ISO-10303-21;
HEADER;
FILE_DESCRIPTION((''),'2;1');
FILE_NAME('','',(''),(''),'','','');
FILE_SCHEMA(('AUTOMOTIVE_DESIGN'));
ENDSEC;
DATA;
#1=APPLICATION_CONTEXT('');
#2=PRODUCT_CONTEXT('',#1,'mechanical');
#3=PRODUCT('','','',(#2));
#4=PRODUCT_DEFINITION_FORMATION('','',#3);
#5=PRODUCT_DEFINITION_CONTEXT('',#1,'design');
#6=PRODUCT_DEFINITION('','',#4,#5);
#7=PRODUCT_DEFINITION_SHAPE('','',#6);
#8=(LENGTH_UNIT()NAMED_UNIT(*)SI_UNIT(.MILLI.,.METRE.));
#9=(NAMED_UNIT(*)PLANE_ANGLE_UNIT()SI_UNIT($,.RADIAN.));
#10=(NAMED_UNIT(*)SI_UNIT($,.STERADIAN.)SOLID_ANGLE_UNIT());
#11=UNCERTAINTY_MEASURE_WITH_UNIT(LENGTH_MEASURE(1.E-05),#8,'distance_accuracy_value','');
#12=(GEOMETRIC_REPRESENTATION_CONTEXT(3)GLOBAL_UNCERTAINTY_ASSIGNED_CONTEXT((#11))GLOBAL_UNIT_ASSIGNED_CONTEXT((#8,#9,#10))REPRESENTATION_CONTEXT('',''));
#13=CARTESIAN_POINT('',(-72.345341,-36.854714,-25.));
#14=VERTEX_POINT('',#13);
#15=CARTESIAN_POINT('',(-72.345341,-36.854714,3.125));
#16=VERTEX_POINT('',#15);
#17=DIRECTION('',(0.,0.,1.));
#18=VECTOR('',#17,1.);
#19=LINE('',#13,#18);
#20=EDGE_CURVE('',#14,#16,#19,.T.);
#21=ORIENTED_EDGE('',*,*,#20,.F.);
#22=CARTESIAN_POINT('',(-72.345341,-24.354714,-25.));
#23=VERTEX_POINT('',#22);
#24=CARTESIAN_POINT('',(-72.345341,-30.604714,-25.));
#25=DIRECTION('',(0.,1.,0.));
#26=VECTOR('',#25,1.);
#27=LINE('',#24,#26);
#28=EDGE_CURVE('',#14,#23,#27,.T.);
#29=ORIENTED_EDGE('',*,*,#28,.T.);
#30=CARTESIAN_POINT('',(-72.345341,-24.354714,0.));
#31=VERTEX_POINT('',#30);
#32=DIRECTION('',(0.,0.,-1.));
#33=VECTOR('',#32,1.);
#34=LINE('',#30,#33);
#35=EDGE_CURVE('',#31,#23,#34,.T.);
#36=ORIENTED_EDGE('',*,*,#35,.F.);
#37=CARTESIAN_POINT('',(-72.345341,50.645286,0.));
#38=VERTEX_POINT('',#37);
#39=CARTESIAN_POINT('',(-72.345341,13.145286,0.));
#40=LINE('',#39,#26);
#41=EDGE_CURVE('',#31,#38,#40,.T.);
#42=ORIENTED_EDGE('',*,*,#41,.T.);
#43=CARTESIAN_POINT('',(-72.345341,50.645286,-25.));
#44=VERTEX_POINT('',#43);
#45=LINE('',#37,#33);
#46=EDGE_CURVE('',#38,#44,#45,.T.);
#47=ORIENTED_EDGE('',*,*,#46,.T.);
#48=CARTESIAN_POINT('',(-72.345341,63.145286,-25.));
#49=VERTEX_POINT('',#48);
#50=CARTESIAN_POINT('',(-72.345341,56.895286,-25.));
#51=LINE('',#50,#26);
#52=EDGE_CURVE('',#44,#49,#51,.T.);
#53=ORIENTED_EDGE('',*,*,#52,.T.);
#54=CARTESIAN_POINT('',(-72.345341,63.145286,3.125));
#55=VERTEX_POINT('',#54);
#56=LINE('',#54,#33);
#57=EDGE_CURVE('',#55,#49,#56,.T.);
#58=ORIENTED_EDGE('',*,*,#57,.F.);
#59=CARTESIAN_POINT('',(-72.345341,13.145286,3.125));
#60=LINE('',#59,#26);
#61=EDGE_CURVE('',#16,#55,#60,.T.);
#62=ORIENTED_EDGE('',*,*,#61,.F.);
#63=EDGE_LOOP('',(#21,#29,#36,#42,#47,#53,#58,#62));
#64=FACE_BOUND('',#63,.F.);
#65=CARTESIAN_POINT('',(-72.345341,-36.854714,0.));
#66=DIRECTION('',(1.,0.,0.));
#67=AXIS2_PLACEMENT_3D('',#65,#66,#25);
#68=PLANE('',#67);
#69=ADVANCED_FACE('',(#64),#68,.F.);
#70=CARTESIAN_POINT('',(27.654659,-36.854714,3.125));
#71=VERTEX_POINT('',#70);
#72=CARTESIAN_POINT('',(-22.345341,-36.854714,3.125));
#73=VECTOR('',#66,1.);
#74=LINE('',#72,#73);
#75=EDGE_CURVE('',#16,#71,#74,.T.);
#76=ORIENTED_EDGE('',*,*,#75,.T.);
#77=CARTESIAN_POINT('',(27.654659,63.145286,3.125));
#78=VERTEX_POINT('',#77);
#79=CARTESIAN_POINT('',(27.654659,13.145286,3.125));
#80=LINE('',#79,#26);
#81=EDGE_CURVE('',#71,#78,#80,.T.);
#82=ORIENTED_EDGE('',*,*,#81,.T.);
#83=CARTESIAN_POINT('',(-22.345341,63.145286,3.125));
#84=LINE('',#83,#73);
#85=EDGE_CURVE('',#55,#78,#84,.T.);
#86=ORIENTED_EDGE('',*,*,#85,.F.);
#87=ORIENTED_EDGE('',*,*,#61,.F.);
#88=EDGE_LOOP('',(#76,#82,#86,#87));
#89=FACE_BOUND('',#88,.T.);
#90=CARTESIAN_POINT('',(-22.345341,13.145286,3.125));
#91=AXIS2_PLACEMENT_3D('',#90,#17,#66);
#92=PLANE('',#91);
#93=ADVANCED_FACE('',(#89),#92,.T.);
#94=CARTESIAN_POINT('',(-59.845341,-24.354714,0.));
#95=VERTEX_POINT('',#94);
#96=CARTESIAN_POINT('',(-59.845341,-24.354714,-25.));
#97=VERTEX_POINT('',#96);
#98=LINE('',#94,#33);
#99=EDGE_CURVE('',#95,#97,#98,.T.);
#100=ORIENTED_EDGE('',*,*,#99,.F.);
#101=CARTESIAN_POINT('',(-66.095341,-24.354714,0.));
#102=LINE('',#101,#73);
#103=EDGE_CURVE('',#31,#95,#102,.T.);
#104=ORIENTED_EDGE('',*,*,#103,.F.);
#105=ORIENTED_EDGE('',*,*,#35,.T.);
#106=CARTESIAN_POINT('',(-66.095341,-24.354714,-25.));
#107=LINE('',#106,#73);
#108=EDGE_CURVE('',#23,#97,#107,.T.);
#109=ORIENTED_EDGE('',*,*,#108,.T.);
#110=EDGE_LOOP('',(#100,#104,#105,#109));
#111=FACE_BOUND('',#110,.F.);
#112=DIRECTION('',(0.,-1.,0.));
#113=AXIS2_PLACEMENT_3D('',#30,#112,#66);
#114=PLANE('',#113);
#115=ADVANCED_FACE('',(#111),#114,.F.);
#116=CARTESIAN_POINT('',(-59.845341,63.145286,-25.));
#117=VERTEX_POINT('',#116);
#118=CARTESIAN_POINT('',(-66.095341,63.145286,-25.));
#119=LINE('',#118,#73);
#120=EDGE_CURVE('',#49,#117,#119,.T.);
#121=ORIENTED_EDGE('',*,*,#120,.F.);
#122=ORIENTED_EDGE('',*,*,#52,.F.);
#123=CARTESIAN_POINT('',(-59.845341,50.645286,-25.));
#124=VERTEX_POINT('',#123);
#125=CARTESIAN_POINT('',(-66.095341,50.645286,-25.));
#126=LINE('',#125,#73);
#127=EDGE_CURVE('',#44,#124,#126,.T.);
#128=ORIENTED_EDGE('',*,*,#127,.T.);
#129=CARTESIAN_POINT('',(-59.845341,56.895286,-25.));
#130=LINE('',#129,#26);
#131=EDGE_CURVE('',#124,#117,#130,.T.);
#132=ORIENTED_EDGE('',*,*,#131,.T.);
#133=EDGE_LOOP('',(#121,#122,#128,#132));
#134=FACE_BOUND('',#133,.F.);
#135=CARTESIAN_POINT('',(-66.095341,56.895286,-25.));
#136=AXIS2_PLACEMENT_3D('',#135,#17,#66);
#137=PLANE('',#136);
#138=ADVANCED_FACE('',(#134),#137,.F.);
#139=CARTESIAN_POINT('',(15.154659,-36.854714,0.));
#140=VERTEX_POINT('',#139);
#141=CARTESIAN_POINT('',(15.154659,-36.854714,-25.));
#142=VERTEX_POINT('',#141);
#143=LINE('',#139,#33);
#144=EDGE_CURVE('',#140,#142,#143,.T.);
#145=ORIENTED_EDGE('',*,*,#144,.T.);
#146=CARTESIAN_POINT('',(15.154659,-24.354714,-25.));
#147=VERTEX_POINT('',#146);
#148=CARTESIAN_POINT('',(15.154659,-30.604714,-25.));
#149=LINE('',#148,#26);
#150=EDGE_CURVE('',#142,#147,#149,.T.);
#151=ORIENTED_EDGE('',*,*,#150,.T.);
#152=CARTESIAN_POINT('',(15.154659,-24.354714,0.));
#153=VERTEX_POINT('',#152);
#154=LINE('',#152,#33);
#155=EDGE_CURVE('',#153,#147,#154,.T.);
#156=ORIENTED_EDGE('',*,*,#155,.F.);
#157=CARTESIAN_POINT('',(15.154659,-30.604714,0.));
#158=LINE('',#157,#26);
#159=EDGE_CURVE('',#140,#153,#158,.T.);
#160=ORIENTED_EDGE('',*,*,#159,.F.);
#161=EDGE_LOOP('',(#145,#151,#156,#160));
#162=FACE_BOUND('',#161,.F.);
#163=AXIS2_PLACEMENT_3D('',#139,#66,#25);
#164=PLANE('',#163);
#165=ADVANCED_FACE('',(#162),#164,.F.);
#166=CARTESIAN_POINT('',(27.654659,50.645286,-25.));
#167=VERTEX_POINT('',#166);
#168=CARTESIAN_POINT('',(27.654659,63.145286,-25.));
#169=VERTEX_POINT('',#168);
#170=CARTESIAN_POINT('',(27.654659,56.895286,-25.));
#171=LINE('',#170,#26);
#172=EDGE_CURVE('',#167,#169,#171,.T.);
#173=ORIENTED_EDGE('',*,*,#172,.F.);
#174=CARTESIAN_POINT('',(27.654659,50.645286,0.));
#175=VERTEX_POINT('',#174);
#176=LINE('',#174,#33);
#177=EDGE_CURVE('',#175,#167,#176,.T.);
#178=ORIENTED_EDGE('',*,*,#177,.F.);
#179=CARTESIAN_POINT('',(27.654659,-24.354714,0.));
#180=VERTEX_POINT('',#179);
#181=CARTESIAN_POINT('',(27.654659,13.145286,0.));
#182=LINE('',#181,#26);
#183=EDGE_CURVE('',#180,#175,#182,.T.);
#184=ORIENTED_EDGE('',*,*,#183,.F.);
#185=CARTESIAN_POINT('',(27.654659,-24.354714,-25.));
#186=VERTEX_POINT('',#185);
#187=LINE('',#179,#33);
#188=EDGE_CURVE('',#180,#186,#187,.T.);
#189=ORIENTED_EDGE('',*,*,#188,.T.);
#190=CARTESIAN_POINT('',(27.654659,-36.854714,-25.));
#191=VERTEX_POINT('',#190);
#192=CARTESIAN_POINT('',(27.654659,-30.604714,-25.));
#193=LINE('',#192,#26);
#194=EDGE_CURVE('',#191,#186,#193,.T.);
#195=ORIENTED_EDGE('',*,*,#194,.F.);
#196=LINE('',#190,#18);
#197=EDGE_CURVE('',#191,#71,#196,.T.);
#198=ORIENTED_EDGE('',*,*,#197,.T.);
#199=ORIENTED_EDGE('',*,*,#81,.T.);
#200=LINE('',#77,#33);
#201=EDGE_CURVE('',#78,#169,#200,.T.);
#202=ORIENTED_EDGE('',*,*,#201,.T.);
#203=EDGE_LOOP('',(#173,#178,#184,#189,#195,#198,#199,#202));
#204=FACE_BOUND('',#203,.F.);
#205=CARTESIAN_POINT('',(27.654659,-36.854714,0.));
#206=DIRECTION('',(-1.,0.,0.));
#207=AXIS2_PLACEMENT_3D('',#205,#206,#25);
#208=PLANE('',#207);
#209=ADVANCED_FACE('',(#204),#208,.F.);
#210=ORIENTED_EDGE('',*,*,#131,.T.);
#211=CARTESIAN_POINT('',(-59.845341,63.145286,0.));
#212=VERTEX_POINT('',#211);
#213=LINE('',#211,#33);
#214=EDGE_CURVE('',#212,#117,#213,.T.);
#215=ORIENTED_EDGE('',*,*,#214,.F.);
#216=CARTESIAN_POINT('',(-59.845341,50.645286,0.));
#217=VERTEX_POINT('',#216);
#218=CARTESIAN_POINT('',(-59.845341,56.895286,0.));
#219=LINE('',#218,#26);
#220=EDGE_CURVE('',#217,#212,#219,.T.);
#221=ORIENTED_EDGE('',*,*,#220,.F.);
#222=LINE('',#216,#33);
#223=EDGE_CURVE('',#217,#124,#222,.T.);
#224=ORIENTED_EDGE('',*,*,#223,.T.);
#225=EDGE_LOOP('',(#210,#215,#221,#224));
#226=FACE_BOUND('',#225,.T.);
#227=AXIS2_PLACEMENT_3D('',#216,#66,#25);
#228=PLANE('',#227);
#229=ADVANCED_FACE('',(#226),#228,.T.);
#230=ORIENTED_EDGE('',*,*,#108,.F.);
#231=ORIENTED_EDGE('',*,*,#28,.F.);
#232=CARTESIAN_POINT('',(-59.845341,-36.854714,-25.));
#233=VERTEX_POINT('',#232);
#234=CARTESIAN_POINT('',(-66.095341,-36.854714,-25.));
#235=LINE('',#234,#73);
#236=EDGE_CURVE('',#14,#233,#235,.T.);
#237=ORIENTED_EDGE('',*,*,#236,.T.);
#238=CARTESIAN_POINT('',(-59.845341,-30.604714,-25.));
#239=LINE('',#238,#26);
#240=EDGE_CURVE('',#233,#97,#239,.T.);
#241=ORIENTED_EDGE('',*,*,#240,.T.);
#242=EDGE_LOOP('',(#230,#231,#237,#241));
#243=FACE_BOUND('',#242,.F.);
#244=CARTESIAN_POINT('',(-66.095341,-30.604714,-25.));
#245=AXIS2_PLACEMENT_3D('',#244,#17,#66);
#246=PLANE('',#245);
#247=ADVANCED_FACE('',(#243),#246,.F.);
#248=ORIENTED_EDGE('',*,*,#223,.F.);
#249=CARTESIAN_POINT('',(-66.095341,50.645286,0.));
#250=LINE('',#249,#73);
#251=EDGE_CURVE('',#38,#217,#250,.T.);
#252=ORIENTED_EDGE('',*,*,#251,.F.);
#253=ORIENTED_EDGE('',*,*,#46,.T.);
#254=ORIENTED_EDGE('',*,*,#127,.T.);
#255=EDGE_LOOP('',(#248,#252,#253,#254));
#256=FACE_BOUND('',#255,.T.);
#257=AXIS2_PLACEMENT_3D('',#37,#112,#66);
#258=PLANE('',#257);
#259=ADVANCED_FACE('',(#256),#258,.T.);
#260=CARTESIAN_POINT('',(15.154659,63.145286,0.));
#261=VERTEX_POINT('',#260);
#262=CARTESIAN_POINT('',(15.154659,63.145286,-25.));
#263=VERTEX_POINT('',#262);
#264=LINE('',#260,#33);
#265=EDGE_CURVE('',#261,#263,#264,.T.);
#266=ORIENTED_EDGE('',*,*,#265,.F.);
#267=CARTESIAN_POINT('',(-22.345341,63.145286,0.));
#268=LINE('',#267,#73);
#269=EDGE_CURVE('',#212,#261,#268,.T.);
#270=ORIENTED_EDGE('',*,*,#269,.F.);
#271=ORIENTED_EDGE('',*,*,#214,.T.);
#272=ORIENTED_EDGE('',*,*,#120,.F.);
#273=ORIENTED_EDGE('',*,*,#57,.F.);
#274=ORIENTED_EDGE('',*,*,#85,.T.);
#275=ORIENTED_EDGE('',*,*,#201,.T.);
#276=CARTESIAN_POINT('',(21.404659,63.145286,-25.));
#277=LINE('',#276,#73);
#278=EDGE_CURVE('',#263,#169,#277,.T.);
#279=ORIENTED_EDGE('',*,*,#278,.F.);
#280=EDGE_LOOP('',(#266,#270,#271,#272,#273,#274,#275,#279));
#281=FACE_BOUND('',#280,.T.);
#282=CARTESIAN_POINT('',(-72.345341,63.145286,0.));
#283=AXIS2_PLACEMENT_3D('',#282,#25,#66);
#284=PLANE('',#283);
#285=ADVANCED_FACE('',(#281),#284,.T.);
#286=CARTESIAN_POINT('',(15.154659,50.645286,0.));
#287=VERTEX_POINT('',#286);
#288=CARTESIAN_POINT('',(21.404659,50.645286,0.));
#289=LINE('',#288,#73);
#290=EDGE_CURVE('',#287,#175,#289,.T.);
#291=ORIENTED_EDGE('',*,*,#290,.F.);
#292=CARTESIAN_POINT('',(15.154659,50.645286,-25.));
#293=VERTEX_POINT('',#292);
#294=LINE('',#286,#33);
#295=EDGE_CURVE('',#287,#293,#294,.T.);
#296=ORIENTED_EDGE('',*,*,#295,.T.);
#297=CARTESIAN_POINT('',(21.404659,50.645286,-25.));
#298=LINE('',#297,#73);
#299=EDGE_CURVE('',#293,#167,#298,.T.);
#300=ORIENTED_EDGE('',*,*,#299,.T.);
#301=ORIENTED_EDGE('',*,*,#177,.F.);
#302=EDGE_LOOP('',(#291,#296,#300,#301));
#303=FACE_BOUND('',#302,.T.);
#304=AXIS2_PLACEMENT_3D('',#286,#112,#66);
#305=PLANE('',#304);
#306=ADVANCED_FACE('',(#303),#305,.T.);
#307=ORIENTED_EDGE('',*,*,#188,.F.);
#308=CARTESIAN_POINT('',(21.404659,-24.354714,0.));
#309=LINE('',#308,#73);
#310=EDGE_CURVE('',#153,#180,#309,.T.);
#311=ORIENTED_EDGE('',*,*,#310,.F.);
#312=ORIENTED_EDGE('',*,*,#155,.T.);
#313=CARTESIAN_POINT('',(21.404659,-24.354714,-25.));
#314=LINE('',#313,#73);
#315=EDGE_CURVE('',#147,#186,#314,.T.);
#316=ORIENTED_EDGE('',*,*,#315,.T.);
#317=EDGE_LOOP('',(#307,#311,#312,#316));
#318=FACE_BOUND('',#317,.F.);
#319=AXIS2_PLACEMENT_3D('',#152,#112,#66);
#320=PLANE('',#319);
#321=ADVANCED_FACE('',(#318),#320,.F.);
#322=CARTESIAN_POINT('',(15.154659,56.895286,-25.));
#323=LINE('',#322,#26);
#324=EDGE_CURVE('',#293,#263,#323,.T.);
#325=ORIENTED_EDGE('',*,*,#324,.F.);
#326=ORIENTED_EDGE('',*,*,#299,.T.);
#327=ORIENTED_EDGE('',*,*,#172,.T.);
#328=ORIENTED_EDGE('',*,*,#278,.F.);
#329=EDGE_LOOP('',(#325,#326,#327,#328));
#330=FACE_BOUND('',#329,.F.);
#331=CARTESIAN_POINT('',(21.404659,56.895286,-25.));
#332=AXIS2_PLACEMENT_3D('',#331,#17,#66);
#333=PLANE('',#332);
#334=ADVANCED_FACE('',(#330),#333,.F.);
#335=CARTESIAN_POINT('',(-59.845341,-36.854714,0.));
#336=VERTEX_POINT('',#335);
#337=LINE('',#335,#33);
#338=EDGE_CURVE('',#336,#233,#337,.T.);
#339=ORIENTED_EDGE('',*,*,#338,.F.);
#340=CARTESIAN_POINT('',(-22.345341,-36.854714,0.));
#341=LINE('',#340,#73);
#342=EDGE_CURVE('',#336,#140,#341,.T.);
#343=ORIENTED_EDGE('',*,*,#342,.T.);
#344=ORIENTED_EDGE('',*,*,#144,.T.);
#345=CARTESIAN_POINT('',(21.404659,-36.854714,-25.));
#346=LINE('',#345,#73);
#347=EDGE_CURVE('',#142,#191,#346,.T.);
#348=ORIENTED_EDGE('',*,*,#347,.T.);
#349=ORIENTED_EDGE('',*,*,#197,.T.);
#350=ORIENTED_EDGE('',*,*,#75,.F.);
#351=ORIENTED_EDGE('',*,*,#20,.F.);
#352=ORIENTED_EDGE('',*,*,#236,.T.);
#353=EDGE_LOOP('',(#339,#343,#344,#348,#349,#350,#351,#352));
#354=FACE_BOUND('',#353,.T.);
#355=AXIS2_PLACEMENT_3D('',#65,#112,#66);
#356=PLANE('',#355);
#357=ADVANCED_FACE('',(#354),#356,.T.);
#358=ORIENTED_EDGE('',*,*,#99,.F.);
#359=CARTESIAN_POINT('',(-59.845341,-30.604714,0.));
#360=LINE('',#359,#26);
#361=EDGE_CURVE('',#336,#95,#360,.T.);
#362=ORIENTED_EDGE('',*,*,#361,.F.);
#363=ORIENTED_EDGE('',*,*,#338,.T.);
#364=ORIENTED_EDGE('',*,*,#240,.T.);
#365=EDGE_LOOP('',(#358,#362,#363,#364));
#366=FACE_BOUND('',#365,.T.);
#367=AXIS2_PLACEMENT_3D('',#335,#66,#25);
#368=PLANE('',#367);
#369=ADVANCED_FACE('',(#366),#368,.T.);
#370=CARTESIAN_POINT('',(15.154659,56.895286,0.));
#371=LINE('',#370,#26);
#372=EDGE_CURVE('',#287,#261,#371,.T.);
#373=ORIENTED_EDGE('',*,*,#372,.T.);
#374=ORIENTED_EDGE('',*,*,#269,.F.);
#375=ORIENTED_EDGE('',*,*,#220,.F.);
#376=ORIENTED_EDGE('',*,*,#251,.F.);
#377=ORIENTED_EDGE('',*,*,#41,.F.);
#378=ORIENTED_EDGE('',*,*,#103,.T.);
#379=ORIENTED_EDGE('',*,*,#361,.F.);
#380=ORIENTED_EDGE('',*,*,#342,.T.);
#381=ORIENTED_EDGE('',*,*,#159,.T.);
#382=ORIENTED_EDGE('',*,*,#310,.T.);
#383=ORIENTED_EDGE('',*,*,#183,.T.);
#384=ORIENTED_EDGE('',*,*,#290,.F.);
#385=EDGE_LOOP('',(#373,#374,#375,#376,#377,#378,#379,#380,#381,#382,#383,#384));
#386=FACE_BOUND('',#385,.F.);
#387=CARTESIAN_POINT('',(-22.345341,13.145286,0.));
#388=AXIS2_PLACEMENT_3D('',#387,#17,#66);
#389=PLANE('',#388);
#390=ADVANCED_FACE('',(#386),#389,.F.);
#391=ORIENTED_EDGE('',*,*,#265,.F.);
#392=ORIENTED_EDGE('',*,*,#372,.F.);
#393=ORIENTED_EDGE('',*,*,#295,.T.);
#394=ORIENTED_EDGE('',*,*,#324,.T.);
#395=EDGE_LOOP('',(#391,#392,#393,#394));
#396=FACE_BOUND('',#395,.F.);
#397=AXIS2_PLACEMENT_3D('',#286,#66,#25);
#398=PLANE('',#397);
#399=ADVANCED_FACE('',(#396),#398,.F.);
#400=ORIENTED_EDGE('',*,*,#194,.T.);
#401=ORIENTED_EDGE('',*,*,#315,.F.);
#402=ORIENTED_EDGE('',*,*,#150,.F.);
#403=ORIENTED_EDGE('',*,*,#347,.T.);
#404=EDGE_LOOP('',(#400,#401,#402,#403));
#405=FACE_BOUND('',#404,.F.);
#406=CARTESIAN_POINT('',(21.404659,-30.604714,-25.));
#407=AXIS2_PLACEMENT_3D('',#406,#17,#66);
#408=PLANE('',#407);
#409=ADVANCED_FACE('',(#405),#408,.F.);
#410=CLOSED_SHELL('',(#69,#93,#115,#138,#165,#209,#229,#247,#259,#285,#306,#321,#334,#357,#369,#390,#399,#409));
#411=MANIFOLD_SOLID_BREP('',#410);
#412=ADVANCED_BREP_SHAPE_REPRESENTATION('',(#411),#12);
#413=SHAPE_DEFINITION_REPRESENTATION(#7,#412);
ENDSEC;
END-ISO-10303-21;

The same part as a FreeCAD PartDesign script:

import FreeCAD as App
import Part
import Sketcher
from FreeCAD import Vector
Q = App.Units.Quantity


def add_polygon(sketch, points):
    """Adds a closed chain of lines whose ends are joined by coincident constraints."""
    first, n = sketch.GeometryCount, len(points)
    for a, b in zip(points, points[1:] + points[:1]):
        sketch.addGeometry(Part.LineSegment(App.Vector(*a, 0), App.Vector(*b, 0)), False)
    for i in range(n):
        sketch.addConstraint(Sketcher.Constraint("Coincident", first + i, 2, first + (i + 1) % n, 1))

doc = App.newDocument("Part")
params = doc.addObject("Spreadsheet::Sheet", "Params")
for row, (alias, value) in enumerate([
    ("sketch1_width", "100 mm"),
    ("pad1_length", "3.125 mm"),
    ("sketch2_width", "12.5 mm"),
    ("pad2_length", "25 mm"),
], start=1):
    params.set(f"A{row}", alias)
    params.set(f"B{row}", "=" + value)
    params.setAlias(f"B{row}", alias)

body = doc.addObject("PartDesign::Body", "Body")

# Sketch on XY plane
sketch1 = body.newObject("Sketcher::SketchObject", "Sketch")
sketch1.AttachmentSupport = (doc.getObject("XY_Plane"), [""])
sketch1.MapMode = "FlatFace"
add_polygon(sketch1, [(-72.345341, 63.145286), (-72.345341, -36.854714), (27.654659, -36.854714), (27.654659, 63.145286)])  # lines 0-3
sketch1.addConstraint(Sketcher.Constraint("Vertical", 0))
sketch1.addConstraint(Sketcher.Constraint("Horizontal", 1))
sketch1.addConstraint(Sketcher.Constraint("Vertical", 2))
sketch1.addConstraint(Sketcher.Constraint("Horizontal", 3))
sketch1.addConstraint(Sketcher.Constraint("Equal", 3, 0))
sketch1.addConstraint(Sketcher.Constraint("DistanceX", 1, 1, 1, 2, Q("100 mm")))
sketch1.addConstraint(Sketcher.Constraint("DistanceX", 0, 2, -1, 1, Q("72.345341 mm")))
sketch1.addConstraint(Sketcher.Constraint("DistanceY", 0, 2, -1, 1, Q("36.854714 mm")))
sketch1.setExpression("Constraints[9]", "Params.sketch1_width")
pad1 = body.newObject("PartDesign::Pad", "Pad")
pad1.Profile = sketch1
pad1.setExpression("Length", "Params.pad1_length")

# Sketch on XY plane
sketch2 = body.newObject("Sketcher::SketchObject", "Sketch001")
sketch2.AttachmentSupport = (doc.getObject("XY_Plane"), [""])
sketch2.MapMode = "FlatFace"
add_polygon(sketch2, [(-72.345341, -24.354714), (-72.345341, -36.854714), (-59.845341, -36.854714), (-59.845341, -24.354714)])  # lines 0-3
add_polygon(sketch2, [(15.154659, -24.354714), (15.154659, -36.854714), (27.654659, -36.854714), (27.654659, -24.354714)])  # lines 4-7
add_polygon(sketch2, [(-72.345341, 63.145286), (-72.345341, 50.645286), (-59.845341, 50.645286), (-59.845341, 63.145286)])  # lines 8-11
add_polygon(sketch2, [(15.154659, 63.145286), (15.154659, 50.645286), (27.654659, 50.645286), (27.654659, 63.145286)])  # lines 12-15
sketch2.addConstraint(Sketcher.Constraint("Vertical", 0))
sketch2.addConstraint(Sketcher.Constraint("Horizontal", 1))
sketch2.addConstraint(Sketcher.Constraint("Vertical", 2))
sketch2.addConstraint(Sketcher.Constraint("Horizontal", 3))
sketch2.addConstraint(Sketcher.Constraint("Vertical", 4))
sketch2.addConstraint(Sketcher.Constraint("Horizontal", 5))
sketch2.addConstraint(Sketcher.Constraint("Vertical", 6))
sketch2.addConstraint(Sketcher.Constraint("Horizontal", 7))
sketch2.addConstraint(Sketcher.Constraint("Vertical", 8))
sketch2.addConstraint(Sketcher.Constraint("Horizontal", 9))
sketch2.addConstraint(Sketcher.Constraint("Vertical", 10))
sketch2.addConstraint(Sketcher.Constraint("Horizontal", 11))
sketch2.addConstraint(Sketcher.Constraint("Vertical", 12))
sketch2.addConstraint(Sketcher.Constraint("Horizontal", 13))
sketch2.addConstraint(Sketcher.Constraint("Vertical", 14))
sketch2.addConstraint(Sketcher.Constraint("Horizontal", 15))
sketch2.addConstraint(Sketcher.Constraint("Horizontal", 1, 2, 4, 2))
sketch2.addConstraint(Sketcher.Constraint("Horizontal", 3, 2, 6, 2))
sketch2.addConstraint(Sketcher.Constraint("Horizontal", 9, 2, 12, 2))
sketch2.addConstraint(Sketcher.Constraint("Horizontal", 11, 2, 14, 2))
sketch2.addConstraint(Sketcher.Constraint("Vertical", 3, 2, 8, 2))
sketch2.addConstraint(Sketcher.Constraint("Vertical", 2, 2, 9, 2))
sketch2.addConstraint(Sketcher.Constraint("Vertical", 7, 2, 12, 2))
sketch2.addConstraint(Sketcher.Constraint("Vertical", 6, 2, 13, 2))
sketch2.addConstraint(Sketcher.Constraint("Equal", 3, 5))
sketch2.addConstraint(Sketcher.Constraint("Equal", 15, 0))
sketch2.addConstraint(Sketcher.Constraint("Equal", 6, 8))
sketch2.addConstraint(Sketcher.Constraint("DistanceX", 1, 1, 1, 2, Q("12.5 mm")))
sketch2.addConstraint(Sketcher.Constraint("DistanceX", 1, 2, 4, 2, Q("75 mm")))
sketch2.addConstraint(Sketcher.Constraint("DistanceY", 3, 2, 8, 2, Q("75 mm")))
sketch2.addConstraint(Sketcher.Constraint("DistanceX", 0, 2, -1, 1, Q("72.345341 mm")))
sketch2.addConstraint(Sketcher.Constraint("DistanceY", 0, 2, -1, 1, Q("36.854714 mm")))
sketch2.setExpression("Constraints[43]", "Params.sketch2_width")
pad2 = body.newObject("PartDesign::Pad", "Pad001")
pad2.Profile = sketch2
pad2.setExpression("Length", "Params.pad2_length")
pad2.Reversed = True

doc.recompute()
